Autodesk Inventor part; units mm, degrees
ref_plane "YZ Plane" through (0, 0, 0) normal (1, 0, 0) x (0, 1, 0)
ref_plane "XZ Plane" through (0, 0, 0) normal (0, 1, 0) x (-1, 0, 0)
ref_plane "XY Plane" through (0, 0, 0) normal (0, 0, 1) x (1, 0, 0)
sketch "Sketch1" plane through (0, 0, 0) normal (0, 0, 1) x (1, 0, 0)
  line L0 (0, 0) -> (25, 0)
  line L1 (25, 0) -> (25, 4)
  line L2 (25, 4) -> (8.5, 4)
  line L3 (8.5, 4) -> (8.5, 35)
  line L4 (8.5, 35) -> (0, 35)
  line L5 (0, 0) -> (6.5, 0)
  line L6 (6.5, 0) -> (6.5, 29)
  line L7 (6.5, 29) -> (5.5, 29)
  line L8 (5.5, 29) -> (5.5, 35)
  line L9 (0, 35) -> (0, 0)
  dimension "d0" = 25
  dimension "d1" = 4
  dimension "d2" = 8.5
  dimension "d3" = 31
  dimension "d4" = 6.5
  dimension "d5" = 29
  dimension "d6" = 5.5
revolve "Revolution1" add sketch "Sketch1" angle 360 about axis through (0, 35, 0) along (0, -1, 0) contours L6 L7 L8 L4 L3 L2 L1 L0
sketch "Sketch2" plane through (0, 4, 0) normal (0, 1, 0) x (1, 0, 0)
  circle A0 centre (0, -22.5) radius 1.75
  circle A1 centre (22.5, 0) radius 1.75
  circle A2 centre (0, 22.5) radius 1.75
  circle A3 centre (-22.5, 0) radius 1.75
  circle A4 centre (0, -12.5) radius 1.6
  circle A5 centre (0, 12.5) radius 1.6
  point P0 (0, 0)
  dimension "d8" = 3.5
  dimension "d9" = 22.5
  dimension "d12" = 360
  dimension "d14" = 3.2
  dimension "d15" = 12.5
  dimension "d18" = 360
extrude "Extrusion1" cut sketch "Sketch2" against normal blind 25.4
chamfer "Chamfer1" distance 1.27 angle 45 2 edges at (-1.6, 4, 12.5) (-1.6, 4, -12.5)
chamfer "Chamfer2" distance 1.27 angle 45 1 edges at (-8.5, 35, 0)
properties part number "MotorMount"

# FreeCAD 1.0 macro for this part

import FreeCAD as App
import Part
import Sketcher

V = App.Vector
Q = App.Units.Quantity


def edges_at(feature, points):
    """Names of the edges that pass closest to the given points."""
    edges = feature.Shape.Edges
    near = lambda p: min(range(len(edges)), key=lambda i: edges[i].distToShape(Part.Vertex(*p))[0])
    return sorted({f"Edge{near(p) + 1}" for p in points})


def add_polygon(sketch, points):
    """Adds a closed chain of lines whose ends are joined by coincident constraints."""
    first, n = sketch.GeometryCount, len(points)
    for a, b in zip(points, points[1:] + points[:1]):
        sketch.addGeometry(Part.LineSegment(App.Vector(*a, 0), App.Vector(*b, 0)), False)
    for i in range(n):
        sketch.addConstraint(Sketcher.Constraint("Coincident", first + i, 2, first + (i + 1) % n, 1))

doc = App.newDocument("Part")
body = doc.addObject("PartDesign::Body", "Body")

# Sketch on XY plane
sketch1 = body.newObject("Sketcher::SketchObject", "Sketch")
sketch1.AttachmentSupport = (doc.getObject("XY_Plane"), [""])
sketch1.MapMode = "FlatFace"
add_polygon(sketch1, [(6.5, 29), (6.5, 0), (25, 0), (25, 4), (8.5, 4), (8.5, 35), (5.5, 35), (5.5, 29)])  # lines 0-7
sketch1.addConstraint(Sketcher.Constraint("Vertical", 0))
sketch1.addConstraint(Sketcher.Constraint("Horizontal", 1))
sketch1.addConstraint(Sketcher.Constraint("Vertical", 2))
sketch1.addConstraint(Sketcher.Constraint("Horizontal", 3))
sketch1.addConstraint(Sketcher.Constraint("Vertical", 4))
sketch1.addConstraint(Sketcher.Constraint("Horizontal", 5))
sketch1.addConstraint(Sketcher.Constraint("Vertical", 6))
sketch1.addConstraint(Sketcher.Constraint("Horizontal", 7))
sketch1.addConstraint(Sketcher.Constraint("PointOnObject", 0, 2, -1))
sketch1.addConstraint(Sketcher.Constraint("DistanceY", 0, 2, 0, 1, Q("29 mm")))
sketch1.addConstraint(Sketcher.Constraint("DistanceY", 2, 1, 2, 2, Q("4 mm")))
sketch1.addConstraint(Sketcher.Constraint("DistanceY", 4, 1, 4, 2, Q("31 mm")))
sketch1.addConstraint(Sketcher.Constraint("DistanceX", -1, 1, 1, 2, Q("25 mm")))
sketch1.addConstraint(Sketcher.Constraint("DistanceX", -1, 1, 0, 2, Q("6.5 mm")))
sketch1.addConstraint(Sketcher.Constraint("DistanceX", -1, 1, 3, 2, Q("8.5 mm")))
sketch1.addConstraint(Sketcher.Constraint("DistanceX", -1, 1, 5, 2, Q("5.5 mm")))
revolution = body.newObject("PartDesign::Revolution", "Revolution")
revolution.Profile = sketch1
revolution.ReferenceAxis = (sketch1, ["V_Axis"])
revolution.Angle = 360

# Sketch on XZ plane
sketch2 = body.newObject("Sketcher::SketchObject", "Sketch001")
sketch2.AttachmentSupport = (doc.getObject("XZ_Plane"), [""])
sketch2.MapMode = "FlatFace"
sketch2.AttachmentOffset = App.Placement(V(0, 0, -4), App.Rotation())
sketch2.addGeometry(Part.Circle(V(0, 22.5, 0), V(0, 0, 1), 1.8), False)
sketch2.addGeometry(Part.Circle(V(22.5, 0, 0), V(0, 0, 1), 1.8), False)
sketch2.addGeometry(Part.Circle(V(0, -22.5, 0), V(0, 0, 1), 1.8), False)
sketch2.addGeometry(Part.Circle(V(-22.5, 0, 0), V(0, 0, 1), 1.8), False)
sketch2.addGeometry(Part.Circle(V(0, 12.5, 0), V(0, 0, 1), 1.6), False)
sketch2.addGeometry(Part.Circle(V(0, -12.5, 0), V(0, 0, 1), 1.6), False)
sketch2.addConstraint(Sketcher.Constraint("Equal", 0, 1))
sketch2.addConstraint(Sketcher.Constraint("Equal", 1, 2))
sketch2.addConstraint(Sketcher.Constraint("Equal", 2, 3))
sketch2.addConstraint(Sketcher.Constraint("Equal", 4, 5))
sketch2.addConstraint(Sketcher.Constraint("Symmetric", 0, 3, 2, 3, -1, 1))
sketch2.addConstraint(Sketcher.Constraint("Symmetric", 1, 3, 3, 3, -1, 1))
sketch2.addConstraint(Sketcher.Constraint("Symmetric", 4, 3, 5, 3, -1, 1))
sketch2.addConstraint(Sketcher.Constraint("PointOnObject", 0, 3, -2))
sketch2.addConstraint(Sketcher.Constraint("PointOnObject", 1, 3, -1))
sketch2.addConstraint(Sketcher.Constraint("PointOnObject", 4, 3, -2))
sketch2.addConstraint(Sketcher.Constraint("Diameter", 0, Q("3.5 mm")))
sketch2.addConstraint(Sketcher.Constraint("Diameter", 4, Q("3.2 mm")))
sketch2.addConstraint(Sketcher.Constraint("DistanceY", -1, 1, 0, 3, Q("22.5 mm")))
sketch2.addConstraint(Sketcher.Constraint("DistanceX", -1, 1, 1, 3, Q("22.5 mm")))
sketch2.addConstraint(Sketcher.Constraint("DistanceY", -1, 1, 4, 3, Q("12.5 mm")))
pocket1 = body.newObject("PartDesign::Pocket", "Pocket")
pocket1.Profile = sketch2
pocket1.Length = 25.4
pocket1.Reversed = True
doc.recompute()

chamfer = body.newObject("PartDesign::Chamfer", "Chamfer")
chamfer.Base = (pocket1, edges_at(pocket1, [(-1.6, 4, 12.5), (-1.6, 4, -12.5)]))
chamfer.Size = 1.27
doc.recompute()

chamfer2 = body.newObject("PartDesign::Chamfer", "Chamfer001")
chamfer2.Base = (chamfer, edges_at(chamfer, [(-8.5, 35, 0)]))
chamfer2.Size = 1.27

doc.recompute()
